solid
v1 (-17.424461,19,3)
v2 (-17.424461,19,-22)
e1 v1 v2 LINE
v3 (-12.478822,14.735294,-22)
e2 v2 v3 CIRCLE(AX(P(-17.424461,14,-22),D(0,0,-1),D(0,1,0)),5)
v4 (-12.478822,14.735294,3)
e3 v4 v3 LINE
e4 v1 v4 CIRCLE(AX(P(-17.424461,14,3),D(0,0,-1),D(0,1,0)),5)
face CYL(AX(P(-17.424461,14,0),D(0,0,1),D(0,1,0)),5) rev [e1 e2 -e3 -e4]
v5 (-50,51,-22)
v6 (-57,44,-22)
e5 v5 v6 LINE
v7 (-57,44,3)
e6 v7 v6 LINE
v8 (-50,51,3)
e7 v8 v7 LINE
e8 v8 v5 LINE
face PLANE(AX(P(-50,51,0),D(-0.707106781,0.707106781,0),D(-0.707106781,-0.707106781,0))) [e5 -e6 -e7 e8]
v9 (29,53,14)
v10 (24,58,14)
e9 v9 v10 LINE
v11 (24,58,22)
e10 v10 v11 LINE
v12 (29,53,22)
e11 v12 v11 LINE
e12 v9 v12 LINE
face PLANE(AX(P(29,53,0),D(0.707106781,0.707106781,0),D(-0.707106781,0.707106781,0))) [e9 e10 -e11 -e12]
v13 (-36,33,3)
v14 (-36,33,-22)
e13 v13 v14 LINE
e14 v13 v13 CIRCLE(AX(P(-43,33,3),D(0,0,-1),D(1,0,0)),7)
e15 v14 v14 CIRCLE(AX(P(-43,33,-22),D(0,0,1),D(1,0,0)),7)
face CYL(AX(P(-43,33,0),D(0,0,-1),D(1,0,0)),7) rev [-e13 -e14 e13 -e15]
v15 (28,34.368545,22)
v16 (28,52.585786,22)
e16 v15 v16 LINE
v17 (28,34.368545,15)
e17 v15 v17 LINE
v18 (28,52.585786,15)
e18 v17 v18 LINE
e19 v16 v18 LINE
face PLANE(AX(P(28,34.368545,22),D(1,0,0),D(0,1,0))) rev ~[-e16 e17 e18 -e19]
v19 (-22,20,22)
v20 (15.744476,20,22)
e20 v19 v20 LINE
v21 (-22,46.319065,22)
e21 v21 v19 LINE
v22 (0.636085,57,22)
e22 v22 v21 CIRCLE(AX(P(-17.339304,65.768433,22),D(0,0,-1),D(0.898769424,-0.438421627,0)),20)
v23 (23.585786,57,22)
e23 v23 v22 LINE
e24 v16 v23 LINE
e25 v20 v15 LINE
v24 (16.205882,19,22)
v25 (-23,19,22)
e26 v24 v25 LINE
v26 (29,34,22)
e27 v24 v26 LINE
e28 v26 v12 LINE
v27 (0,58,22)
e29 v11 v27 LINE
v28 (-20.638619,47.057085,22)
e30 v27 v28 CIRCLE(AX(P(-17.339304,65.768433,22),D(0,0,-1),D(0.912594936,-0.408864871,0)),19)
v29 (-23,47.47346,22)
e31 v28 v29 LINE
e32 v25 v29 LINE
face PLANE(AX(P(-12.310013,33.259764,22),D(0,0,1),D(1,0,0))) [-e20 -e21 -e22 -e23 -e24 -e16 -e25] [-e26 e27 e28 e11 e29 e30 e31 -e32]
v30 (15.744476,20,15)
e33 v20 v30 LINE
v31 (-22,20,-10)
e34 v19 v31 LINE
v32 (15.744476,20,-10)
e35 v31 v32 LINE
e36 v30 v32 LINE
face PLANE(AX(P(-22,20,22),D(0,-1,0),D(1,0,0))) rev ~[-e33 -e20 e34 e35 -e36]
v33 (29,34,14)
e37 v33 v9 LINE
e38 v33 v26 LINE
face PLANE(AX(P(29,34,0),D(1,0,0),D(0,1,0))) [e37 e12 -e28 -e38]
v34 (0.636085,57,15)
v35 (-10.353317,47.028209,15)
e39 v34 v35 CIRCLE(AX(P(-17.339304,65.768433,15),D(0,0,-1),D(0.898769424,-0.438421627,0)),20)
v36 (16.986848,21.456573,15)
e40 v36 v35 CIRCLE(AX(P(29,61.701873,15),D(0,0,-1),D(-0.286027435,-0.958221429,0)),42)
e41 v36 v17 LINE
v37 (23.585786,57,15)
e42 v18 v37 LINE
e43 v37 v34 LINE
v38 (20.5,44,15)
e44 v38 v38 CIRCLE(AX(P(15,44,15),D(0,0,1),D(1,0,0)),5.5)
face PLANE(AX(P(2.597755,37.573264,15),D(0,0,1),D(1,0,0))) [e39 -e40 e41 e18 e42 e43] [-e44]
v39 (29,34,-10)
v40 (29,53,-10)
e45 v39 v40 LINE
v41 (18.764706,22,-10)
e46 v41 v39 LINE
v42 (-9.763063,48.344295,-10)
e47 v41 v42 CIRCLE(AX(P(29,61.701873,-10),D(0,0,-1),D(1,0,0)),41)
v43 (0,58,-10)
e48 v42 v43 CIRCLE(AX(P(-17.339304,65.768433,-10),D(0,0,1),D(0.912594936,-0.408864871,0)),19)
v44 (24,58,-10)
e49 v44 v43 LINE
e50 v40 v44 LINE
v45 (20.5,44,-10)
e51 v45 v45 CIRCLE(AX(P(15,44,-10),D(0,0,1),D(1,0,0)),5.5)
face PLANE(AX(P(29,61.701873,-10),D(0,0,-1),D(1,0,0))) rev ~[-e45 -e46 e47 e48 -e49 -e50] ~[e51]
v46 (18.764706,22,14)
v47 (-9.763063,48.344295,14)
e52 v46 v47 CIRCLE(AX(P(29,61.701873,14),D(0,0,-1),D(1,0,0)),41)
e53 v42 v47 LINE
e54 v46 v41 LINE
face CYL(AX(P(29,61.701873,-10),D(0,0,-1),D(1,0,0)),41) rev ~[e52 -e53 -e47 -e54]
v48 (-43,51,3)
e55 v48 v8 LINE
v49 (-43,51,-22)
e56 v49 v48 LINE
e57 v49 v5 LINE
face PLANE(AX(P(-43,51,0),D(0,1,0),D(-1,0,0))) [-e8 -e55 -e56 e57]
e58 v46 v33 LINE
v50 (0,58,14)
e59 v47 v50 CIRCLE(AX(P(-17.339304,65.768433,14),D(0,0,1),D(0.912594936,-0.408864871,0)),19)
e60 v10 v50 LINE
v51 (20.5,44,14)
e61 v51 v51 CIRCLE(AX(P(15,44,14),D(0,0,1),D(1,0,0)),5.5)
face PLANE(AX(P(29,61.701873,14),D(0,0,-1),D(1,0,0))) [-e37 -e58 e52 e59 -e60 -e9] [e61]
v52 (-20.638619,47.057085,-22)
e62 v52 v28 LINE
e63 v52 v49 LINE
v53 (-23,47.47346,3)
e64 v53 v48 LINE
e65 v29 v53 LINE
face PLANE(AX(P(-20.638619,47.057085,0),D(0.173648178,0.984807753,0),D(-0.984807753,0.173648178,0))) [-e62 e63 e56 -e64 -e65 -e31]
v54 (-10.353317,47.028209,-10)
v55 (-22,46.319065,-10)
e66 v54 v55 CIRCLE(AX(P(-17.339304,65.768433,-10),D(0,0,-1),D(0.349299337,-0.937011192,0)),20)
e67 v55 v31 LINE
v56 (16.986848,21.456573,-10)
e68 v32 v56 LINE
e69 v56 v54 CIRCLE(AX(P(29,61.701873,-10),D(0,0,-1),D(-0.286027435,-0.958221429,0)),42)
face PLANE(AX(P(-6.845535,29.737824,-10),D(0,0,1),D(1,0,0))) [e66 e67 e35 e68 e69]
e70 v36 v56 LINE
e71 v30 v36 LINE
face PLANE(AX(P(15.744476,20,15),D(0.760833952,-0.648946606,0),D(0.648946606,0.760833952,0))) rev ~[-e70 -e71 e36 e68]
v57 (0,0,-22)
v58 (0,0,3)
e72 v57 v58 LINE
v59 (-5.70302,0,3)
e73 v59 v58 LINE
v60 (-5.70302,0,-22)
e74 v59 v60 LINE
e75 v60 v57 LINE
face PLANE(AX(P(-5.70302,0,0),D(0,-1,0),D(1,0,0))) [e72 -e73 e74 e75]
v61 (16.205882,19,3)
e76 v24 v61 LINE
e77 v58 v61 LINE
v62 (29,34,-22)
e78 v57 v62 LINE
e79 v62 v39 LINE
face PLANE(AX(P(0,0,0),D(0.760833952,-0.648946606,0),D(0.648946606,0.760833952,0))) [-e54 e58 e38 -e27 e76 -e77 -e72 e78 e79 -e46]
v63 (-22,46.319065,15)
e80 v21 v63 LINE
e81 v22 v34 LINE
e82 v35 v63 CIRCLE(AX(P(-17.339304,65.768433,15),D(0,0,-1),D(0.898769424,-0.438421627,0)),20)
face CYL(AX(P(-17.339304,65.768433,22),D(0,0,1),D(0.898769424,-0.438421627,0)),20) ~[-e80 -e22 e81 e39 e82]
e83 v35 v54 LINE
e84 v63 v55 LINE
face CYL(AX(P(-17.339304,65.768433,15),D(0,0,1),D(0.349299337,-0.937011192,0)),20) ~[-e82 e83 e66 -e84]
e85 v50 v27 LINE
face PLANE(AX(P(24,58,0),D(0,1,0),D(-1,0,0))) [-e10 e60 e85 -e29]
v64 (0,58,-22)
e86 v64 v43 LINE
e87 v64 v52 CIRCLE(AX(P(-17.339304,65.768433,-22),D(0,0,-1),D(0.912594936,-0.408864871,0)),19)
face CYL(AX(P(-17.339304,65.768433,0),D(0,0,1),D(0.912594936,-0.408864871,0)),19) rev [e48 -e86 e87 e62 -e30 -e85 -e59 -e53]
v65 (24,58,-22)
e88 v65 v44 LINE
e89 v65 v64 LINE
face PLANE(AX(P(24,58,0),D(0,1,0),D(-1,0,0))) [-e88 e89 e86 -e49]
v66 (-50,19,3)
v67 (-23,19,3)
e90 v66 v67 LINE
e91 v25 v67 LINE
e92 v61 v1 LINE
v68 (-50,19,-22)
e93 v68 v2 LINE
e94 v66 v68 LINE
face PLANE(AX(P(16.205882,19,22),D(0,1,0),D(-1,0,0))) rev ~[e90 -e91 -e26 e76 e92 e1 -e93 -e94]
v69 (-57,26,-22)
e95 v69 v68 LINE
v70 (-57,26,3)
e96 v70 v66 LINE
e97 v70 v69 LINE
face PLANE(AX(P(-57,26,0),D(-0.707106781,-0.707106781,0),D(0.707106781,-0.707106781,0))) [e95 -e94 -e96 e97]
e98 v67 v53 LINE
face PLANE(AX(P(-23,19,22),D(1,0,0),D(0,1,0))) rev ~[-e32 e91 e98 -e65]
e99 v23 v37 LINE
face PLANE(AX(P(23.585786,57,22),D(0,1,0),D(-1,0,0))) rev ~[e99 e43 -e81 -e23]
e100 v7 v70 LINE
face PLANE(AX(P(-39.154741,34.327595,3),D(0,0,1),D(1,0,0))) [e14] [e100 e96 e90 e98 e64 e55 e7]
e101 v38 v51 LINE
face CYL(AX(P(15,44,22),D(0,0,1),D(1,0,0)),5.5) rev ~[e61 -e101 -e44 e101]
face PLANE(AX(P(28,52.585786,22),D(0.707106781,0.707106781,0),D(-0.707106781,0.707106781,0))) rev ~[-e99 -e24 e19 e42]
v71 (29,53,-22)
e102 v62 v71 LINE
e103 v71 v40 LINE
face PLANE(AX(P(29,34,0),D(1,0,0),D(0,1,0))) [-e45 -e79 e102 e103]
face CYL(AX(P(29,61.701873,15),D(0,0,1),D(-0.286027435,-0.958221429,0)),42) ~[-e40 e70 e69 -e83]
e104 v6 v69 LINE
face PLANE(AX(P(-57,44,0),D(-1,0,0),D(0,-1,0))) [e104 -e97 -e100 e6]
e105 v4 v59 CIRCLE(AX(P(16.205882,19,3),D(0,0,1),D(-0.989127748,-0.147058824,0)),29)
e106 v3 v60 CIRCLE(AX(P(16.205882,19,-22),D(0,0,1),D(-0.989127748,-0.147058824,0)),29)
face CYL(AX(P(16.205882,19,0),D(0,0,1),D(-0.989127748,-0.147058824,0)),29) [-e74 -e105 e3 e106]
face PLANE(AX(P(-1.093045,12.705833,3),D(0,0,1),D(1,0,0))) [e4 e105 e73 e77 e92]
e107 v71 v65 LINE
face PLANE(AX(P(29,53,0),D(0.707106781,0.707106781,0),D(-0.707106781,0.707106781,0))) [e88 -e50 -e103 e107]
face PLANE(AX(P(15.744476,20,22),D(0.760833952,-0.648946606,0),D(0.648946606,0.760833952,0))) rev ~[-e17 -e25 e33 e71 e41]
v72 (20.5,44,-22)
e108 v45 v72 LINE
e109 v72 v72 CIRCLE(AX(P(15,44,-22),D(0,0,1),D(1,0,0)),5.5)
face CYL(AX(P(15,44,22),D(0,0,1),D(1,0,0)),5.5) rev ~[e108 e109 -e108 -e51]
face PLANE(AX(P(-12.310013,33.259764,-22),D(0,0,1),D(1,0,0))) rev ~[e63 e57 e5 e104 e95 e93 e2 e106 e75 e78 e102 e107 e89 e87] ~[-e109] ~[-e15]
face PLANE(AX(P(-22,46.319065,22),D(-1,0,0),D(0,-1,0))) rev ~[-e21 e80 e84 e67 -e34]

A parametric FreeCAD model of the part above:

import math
import FreeCAD as App
import Part
import Sketcher
from FreeCAD import Vector
Q = App.Units.Quantity

doc = App.newDocument("Part")
params = doc.addObject("Spreadsheet::Sheet", "Params")
for row, (alias, value) in enumerate([
    ("sketch1_diameter", "14 mm"),
    ("sketch1_radius", "19 mm"),
    ("sketch1_radius2", "5 mm"),
    ("sketch1_radius3", "29 mm"),
    ("sketch1_width", "24 mm"),
    ("pad1_length", "44 mm"),
    ("sketch2_diameter", "11 mm"),
    ("sketch3_radius", "5 mm"),
    ("sketch3_radius2", "29 mm"),
    ("sketch3_width", "7 mm"),
    ("sketch3_width2", "27 mm"),
    ("sketch3_height", "18 mm"),
    ("pocket2_length", "19 mm"),
    ("sketch4_diameter", "82 mm"),
    ("pocket3_length", "24 mm"),
    ("sketch5_radius", "20 mm"),
    ("pocket4_length", "7 mm"),
    ("sketch6_radius", "20 mm"),
    ("sketch6_radius2", "42 mm"),
    ("pocket5_length", "25 mm"),
], start=1):
    params.set(f"A{row}", alias)
    params.set(f"B{row}", "=" + value)
    params.setAlias(f"B{row}", alias)

body = doc.addObject("PartDesign::Body", "Body")

# Sketch on XY plane
sketch1 = body.newObject("Sketcher::SketchObject", "Sketch")
sketch1.AttachmentSupport = (doc.getObject("XY_Plane"), [""])
sketch1.MapMode = "FlatFace"
sketch1.addGeometry([
    Part.LineSegment(Vector(-6, 0, 0), Vector(0, 0, 0)),  # 0
    Part.LineSegment(Vector(0, 0, 0), Vector(29, 34, 0)),  # 1
    Part.LineSegment(Vector(29, 34, 0), Vector(29, 53, 0)),  # 2
    Part.LineSegment(Vector(29, 53, 0), Vector(24, 58, 0)),  # 3
    Part.LineSegment(Vector(24, 58, 0), Vector(0, 58, 0)),  # 4
    Part.ArcOfCircle(Part.Circle(Vector(-17, 66, 0), Vector(0, 0, 1), 19), math.radians(-100), math.radians(-24)),  # 5
    Part.LineSegment(Vector(-21, 47, 0), Vector(-43, 51, 0)),  # 6
    Part.LineSegment(Vector(-43, 51, 0), Vector(-50, 51, 0)),  # 7
    Part.LineSegment(Vector(-50, 51, 0), Vector(-57, 44, 0)),  # 8
    Part.LineSegment(Vector(-57, 44, 0), Vector(-57, 26, 0)),  # 9
    Part.LineSegment(Vector(-57, 26, 0), Vector(-50, 19, 0)),  # 10
    Part.LineSegment(Vector(-50, 19, 0), Vector(-17, 19, 0)),  # 11
    Part.ArcOfCircle(Part.Circle(Vector(-17, 14, 0), Vector(0, 0, 1), 5), math.radians(8), math.radians(90)),  # 12
    Part.ArcOfCircle(Part.Circle(Vector(16, 19, 0), Vector(0, 0, 1), 29), math.radians(-172), math.radians(-139)),  # 13
    Part.Circle(Vector(-43, 33, 0), Vector(0, 0, 1), 7),  # 14
], False)
sketch1.addConstraint([
    Sketcher.Constraint("Coincident", 0, 2, 1, 1),
    Sketcher.Constraint("Coincident", 1, 2, 2, 1),
    Sketcher.Constraint("Coincident", 2, 2, 3, 1),
    Sketcher.Constraint("Coincident", 3, 2, 4, 1),
    Sketcher.Constraint("Coincident", 4, 2, 5, 2),
    Sketcher.Constraint("Tangent", 5, 1, 6, 1),
    Sketcher.Constraint("Coincident", 6, 2, 7, 1),
    Sketcher.Constraint("Coincident", 7, 2, 8, 1),
    Sketcher.Constraint("Coincident", 8, 2, 9, 1),
    Sketcher.Constraint("Coincident", 9, 2, 10, 1),
    Sketcher.Constraint("Coincident", 10, 2, 11, 1),
    Sketcher.Constraint("Tangent", 11, 2, 12, 2),
    Sketcher.Constraint("Tangent", 12, 1, 13, 1),
    Sketcher.Constraint("Coincident", 13, 2, 0, 1),
    Sketcher.Constraint("Horizontal", 0),
    Sketcher.Constraint("Vertical", 2),
    Sketcher.Constraint("Horizontal", 4),
    Sketcher.Constraint("Horizontal", 7),
    Sketcher.Constraint("Vertical", 9),
    Sketcher.Constraint("Horizontal", 11),
    Sketcher.Constraint("Coincident", 0, 2, -1, 1),
    Sketcher.Constraint("PointOnObject", 4, 2, -2),
    Sketcher.Constraint("Perpendicular", 3, 8),
    Sketcher.Constraint("Perpendicular", 8, 10),
    Sketcher.Constraint("Horizontal", 13, 3, 10, 2),
    Sketcher.Constraint("Vertical", 14, 3, 6, 2),
    Sketcher.Constraint("Vertical", 7, 2, 10, 2),
    Sketcher.Constraint("Equal", 8, 10),
    Sketcher.Constraint("Diameter", 14, 14.0),
    Sketcher.Constraint("Radius", 5, 19.0),
    Sketcher.Constraint("Radius", 12, 5.0),
    Sketcher.Constraint("Radius", 13, 29.0),
    Sketcher.Constraint("DistanceX", 4, 2, 4, 1, 24.0),
    Sketcher.Constraint("DistanceX", 7, 2, 7, 1, 7.0),
    Sketcher.Constraint("DistanceY", 2, 1, 2, 2, 19.0),
    Sketcher.Constraint("DistanceY", 9, 2, 9, 1, 18.0),
    Sketcher.Constraint("Angle", 6, Q("170 deg")),
    Sketcher.Constraint("DistanceY", -1, 1, 12, 3, 14.0),
    Sketcher.Constraint("DistanceX", 14, 3, -1, 1, 43.0),
    Sketcher.Constraint("DistanceY", -1, 1, 14, 3, 33.0),
    Sketcher.Constraint("DistanceX", -1, 1, 1, 2, 29.0),
    Sketcher.Constraint("DistanceY", -1, 1, 1, 2, 34.0),
    Sketcher.Constraint("DistanceY", -1, 1, 6, 2, 51.0),
    Sketcher.Constraint("DistanceX", 0, 1, 0, 2, 5.70302),
])
sketch1.setExpression("Constraints[28]", "Params.sketch1_diameter")
sketch1.setExpression("Constraints[29]", "Params.sketch1_radius")
sketch1.setExpression("Constraints[30]", "Params.sketch1_radius2")
sketch1.setExpression("Constraints[31]", "Params.sketch1_radius3")
sketch1.setExpression("Constraints[32]", "Params.sketch1_width")
pad1 = body.newObject("PartDesign::Pad", "Pad")
pad1.Profile = sketch1
pad1.setExpression("Length", "Params.pad1_length")
pad1.Midplane = True

# Sketch on XY plane
sketch2 = body.newObject("Sketcher::SketchObject", "Sketch001")
sketch2.AttachmentSupport = (doc.getObject("XY_Plane"), [""])
sketch2.MapMode = "FlatFace"
sketch2.AttachmentOffset = App.Placement(Vector(0, 0, 22), App.Rotation())
sketch2.addGeometry(Part.Circle(Vector(15, 44, 0), Vector(0, 0, 1), 6), False)
sketch2.addConstraint([
    Sketcher.Constraint("Diameter", 0, 11.0),
    Sketcher.Constraint("DistanceX", -1, 1, 0, 3, 15.0),
    Sketcher.Constraint("DistanceY", -1, 1, 0, 3, 44.0),
])
sketch2.setExpression("Constraints[0]", "Params.sketch2_diameter")
pocket1 = body.newObject("PartDesign::Pocket", "Pocket")
pocket1.Profile = sketch2
pocket1.Type = "ThroughAll"

# Sketch on XY plane
sketch3 = body.newObject("Sketcher::SketchObject", "Sketch002")
sketch3.AttachmentSupport = (doc.getObject("XY_Plane"), [""])
sketch3.MapMode = "FlatFace"
sketch3.AttachmentOffset = App.Placement(Vector(0, 0, 22), App.Rotation())
sketch3.addGeometry([
    Part.LineSegment(Vector(16, 19, 0), Vector(-17, 19, 0)),  # 0
    Part.ArcOfCircle(Part.Circle(Vector(-17, 14, 0), Vector(0, 0, 1), 5), math.radians(8), math.radians(90)),  # 1
    Part.ArcOfCircle(Part.Circle(Vector(16, 19, 0), Vector(0, 0, 1), 29), math.radians(-172), math.radians(-139)),  # 2
    Part.LineSegment(Vector(-6, 0, 0), Vector(0, 0, 0)),  # 3
    Part.LineSegment(Vector(0, 0, 0), Vector(16, 19, 0)),  # 4
    Part.LineSegment(Vector(-23, 19, 0), Vector(-23, 47, 0)),  # 5
    Part.LineSegment(Vector(-23, 47, 0), Vector(-43, 51, 0)),  # 6
    Part.LineSegment(Vector(-43, 51, 0), Vector(-50, 51, 0)),  # 7
    Part.LineSegment(Vector(-50, 51, 0), Vector(-57, 44, 0)),  # 8
    Part.LineSegment(Vector(-57, 44, 0), Vector(-57, 26, 0)),  # 9
    Part.LineSegment(Vector(-57, 26, 0), Vector(-50, 19, 0)),  # 10
    Part.LineSegment(Vector(-50, 19, 0), Vector(-23, 19, 0)),  # 11
], False)
sketch3.addConstraint([
    Sketcher.Constraint("Tangent", 0, 2, 1, 2),
    Sketcher.Constraint("Tangent", 1, 1, 2, 1),
    Sketcher.Constraint("Coincident", 2, 2, 3, 1),
    Sketcher.Constraint("Coincident", 3, 2, 4, 1),
    Sketcher.Constraint("Coincident", 4, 2, 0, 1),
    Sketcher.Constraint("Coincident", 5, 2, 6, 1),
    Sketcher.Constraint("Coincident", 6, 2, 7, 1),
    Sketcher.Constraint("Coincident", 7, 2, 8, 1),
    Sketcher.Constraint("Coincident", 8, 2, 9, 1),
    Sketcher.Constraint("Coincident", 9, 2, 10, 1),
    Sketcher.Constraint("Coincident", 10, 2, 11, 1),
    Sketcher.Constraint("Coincident", 11, 2, 5, 1),
    Sketcher.Constraint("Horizontal", 0),
    Sketcher.Constraint("Horizontal", 3),
    Sketcher.Constraint("Vertical", 5),
    Sketcher.Constraint("Horizontal", 7),
    Sketcher.Constraint("Vertical", 9),
    Sketcher.Constraint("Horizontal", 11),
    Sketcher.Constraint("Coincident", 3, 2, -1, 1),
    Sketcher.Constraint("Coincident", 4, 2, 2, 3),
    Sketcher.Constraint("Perpendicular", 8, 10),
    Sketcher.Constraint("Horizontal", 4, 2, 10, 2),
    Sketcher.Constraint("Vertical", 7, 2, 10, 2),
    Sketcher.Constraint("Equal", 8, 10),
    Sketcher.Constraint("Radius", 1, 5.0),
    Sketcher.Constraint("Radius", 2, 29.0),
    Sketcher.Constraint("DistanceX", 7, 2, 7, 1, 7.0),
    Sketcher.Constraint("DistanceX", 11, 1, 11, 2, 27.0),
    Sketcher.Constraint("DistanceY", 9, 2, 9, 1, 18.0),
    Sketcher.Constraint("Angle", 6, Q("170 deg")),
    Sketcher.Constraint("DistanceY", -1, 1, 1, 3, 14.0),
    Sketcher.Constraint("DistanceX", 5, 2, -1, 1, 23.0),
    Sketcher.Constraint("DistanceY", -1, 1, 6, 2, 51.0),
    Sketcher.Constraint("DistanceX", 3, 1, 3, 2, 5.70302),
])
sketch3.setExpression("Constraints[24]", "Params.sketch3_radius")
sketch3.setExpression("Constraints[25]", "Params.sketch3_radius2")
sketch3.setExpression("Constraints[26]", "Params.sketch3_width")
sketch3.setExpression("Constraints[27]", "Params.sketch3_width2")
sketch3.setExpression("Constraints[28]", "Params.sketch3_height")
pocket2 = body.newObject("PartDesign::Pocket", "Pocket001")
pocket2.Profile = sketch3
pocket2.setExpression("Length", "Params.pocket2_length")

# Sketch on XY plane
sketch4 = body.newObject("Sketcher::SketchObject", "Sketch003")
sketch4.AttachmentSupport = (doc.getObject("XY_Plane"), [""])
sketch4.MapMode = "FlatFace"
sketch4.AttachmentOffset = App.Placement(Vector(0, 0, -10), App.Rotation())
sketch4.addGeometry(Part.Circle(Vector(29, 62, 0), Vector(0, 0, 1), 41), False)
sketch4.addConstraint([
    Sketcher.Constraint("Diameter", 0, 82.0),
    Sketcher.Constraint("DistanceX", -1, 1, 0, 3, 29.0),
    Sketcher.Constraint("DistanceY", -1, 1, 0, 3, 61.701873),
])
sketch4.setExpression("Constraints[0]", "Params.sketch4_diameter")
pocket3 = body.newObject("PartDesign::Pocket", "Pocket002")
pocket3.Profile = sketch4
pocket3.setExpression("Length", "Params.pocket3_length")
pocket3.Reversed = True

# Sketch on XY plane
sketch5 = body.newObject("Sketcher::SketchObject", "Sketch004")
sketch5.AttachmentSupport = (doc.getObject("XY_Plane"), [""])
sketch5.MapMode = "FlatFace"
sketch5.AttachmentOffset = App.Placement(Vector(0, 0, 22), App.Rotation())
sketch5.addGeometry([
    Part.LineSegment(Vector(28, 34, 0), Vector(28, 53, 0)),  # 0
    Part.LineSegment(Vector(28, 53, 0), Vector(24, 57, 0)),  # 1
    Part.LineSegment(Vector(24, 57, 0), Vector(1, 57, 0)),  # 2
    Part.ArcOfCircle(Part.Circle(Vector(-17, 66, 0), Vector(0, 0, 1), 20), math.radians(-103), math.radians(-26)),  # 3
    Part.LineSegment(Vector(-22, 46, 0), Vector(-22, 20, 0)),  # 4
    Part.LineSegment(Vector(-22, 20, 0), Vector(16, 20, 0)),  # 5
    Part.LineSegment(Vector(16, 20, 0), Vector(28, 34, 0)),  # 6
], False)
sketch5.addConstraint([
    Sketcher.Constraint("Coincident", 0, 2, 1, 1),
    Sketcher.Constraint("Coincident", 1, 2, 2, 1),
    Sketcher.Constraint("Coincident", 2, 2, 3, 2),
    Sketcher.Constraint("Coincident", 3, 1, 4, 1),
    Sketcher.Constraint("Coincident", 4, 2, 5, 1),
    Sketcher.Constraint("Coincident", 5, 2, 6, 1),
    Sketcher.Constraint("Coincident", 6, 2, 0, 1),
    Sketcher.Constraint("Vertical", 0),
    Sketcher.Constraint("Horizontal", 2),
    Sketcher.Constraint("Vertical", 4),
    Sketcher.Constraint("Horizontal", 5),
    Sketcher.Constraint("Radius", 3, 20.0),
    Sketcher.Constraint("Angle", 1, Q("135 deg")),
    Sketcher.Constraint("DistanceX", -1, 1, 0, 2, 28.0),
    Sketcher.Constraint("DistanceY", -1, 1, 1, 2, 57.0),
    Sketcher.Constraint("DistanceX", 3, 1, -1, 1, 22.0),
    Sketcher.Constraint("DistanceY", -1, 1, 4, 2, 20.0),
    Sketcher.Constraint("DistanceX", 2, 2, 2, 1, 22.949702),
    Sketcher.Constraint("DistanceY", 0, 1, 0, 2, 18.217241),
    Sketcher.Constraint("Distance", 1, 6.242641),
    Sketcher.Constraint("DistanceX", 5, 1, 5, 2, 37.744476),
    Sketcher.Constraint("DistanceY", 4, 2, 4, 1, 26.319065),
])
sketch5.setExpression("Constraints[11]", "Params.sketch5_radius")
pocket4 = body.newObject("PartDesign::Pocket", "Pocket003")
pocket4.Profile = sketch5
pocket4.setExpression("Length", "Params.pocket4_length")

# Sketch on XY plane
sketch6 = body.newObject("Sketcher::SketchObject", "Sketch005")
sketch6.AttachmentSupport = (doc.getObject("XY_Plane"), [""])
sketch6.MapMode = "FlatFace"
sketch6.AttachmentOffset = App.Placement(Vector(0, 0, 15), App.Rotation())
sketch6.addGeometry([
    Part.ArcOfCircle(Part.Circle(Vector(-17.3, 65.8, 0), Vector(0, 0, 1), 20), math.radians(-103), math.radians(-70)),  # 0
    Part.LineSegment(Vector(-22, 46.3, 0), Vector(-22, 20, 0)),  # 1
    Part.LineSegment(Vector(-22, 20, 0), Vector(15.7, 20, 0)),  # 2
    Part.LineSegment(Vector(15.7, 20, 0), Vector(17, 21.5, 0)),  # 3
    Part.ArcOfCircle(Part.Circle(Vector(29, 61.7, 0), Vector(0, 0, 1), 42), math.radians(-160), math.radians(-107)),  # 4
], False)
sketch6.addConstraint([
    Sketcher.Constraint("Coincident", 0, 1, 1, 1),
    Sketcher.Constraint("Coincident", 1, 2, 2, 1),
    Sketcher.Constraint("Coincident", 2, 2, 3, 1),
    Sketcher.Constraint("Coincident", 3, 2, 4, 2),
    Sketcher.Constraint("Coincident", 4, 1, 0, 2),
    Sketcher.Constraint("Vertical", 1),
    Sketcher.Constraint("Horizontal", 2),
    Sketcher.Constraint("Radius", 0, 20.0),
    Sketcher.Constraint("Radius", 4, 42.0),
    Sketcher.Constraint("DistanceX", -1, 1, 4, 3, 29.0),
    Sketcher.Constraint("DistanceX", 0, 1, -1, 1, 22.0),
    Sketcher.Constraint("DistanceY", -1, 1, 1, 2, 20.0),
    Sketcher.Constraint("DistanceY", 3, 2, 4, 3, 40.2453),
    Sketcher.Constraint("DistanceX", 2, 1, 2, 2, 37.744476),
    Sketcher.Constraint("DistanceY", 1, 2, 1, 1, 26.319065),
    Sketcher.Constraint("DistanceY", -1, 1, 4, 1, 47.028209),
    Sketcher.Constraint("DistanceY", 4, 3, 0, 3, 4.066559),
])
sketch6.setExpression("Constraints[7]", "Params.sketch6_radius")
sketch6.setExpression("Constraints[8]", "Params.sketch6_radius2")
pocket5 = body.newObject("PartDesign::Pocket", "Pocket004")
pocket5.Profile = sketch6
pocket5.setExpression("Length", "Params.pocket5_length")

doc.recompute()
